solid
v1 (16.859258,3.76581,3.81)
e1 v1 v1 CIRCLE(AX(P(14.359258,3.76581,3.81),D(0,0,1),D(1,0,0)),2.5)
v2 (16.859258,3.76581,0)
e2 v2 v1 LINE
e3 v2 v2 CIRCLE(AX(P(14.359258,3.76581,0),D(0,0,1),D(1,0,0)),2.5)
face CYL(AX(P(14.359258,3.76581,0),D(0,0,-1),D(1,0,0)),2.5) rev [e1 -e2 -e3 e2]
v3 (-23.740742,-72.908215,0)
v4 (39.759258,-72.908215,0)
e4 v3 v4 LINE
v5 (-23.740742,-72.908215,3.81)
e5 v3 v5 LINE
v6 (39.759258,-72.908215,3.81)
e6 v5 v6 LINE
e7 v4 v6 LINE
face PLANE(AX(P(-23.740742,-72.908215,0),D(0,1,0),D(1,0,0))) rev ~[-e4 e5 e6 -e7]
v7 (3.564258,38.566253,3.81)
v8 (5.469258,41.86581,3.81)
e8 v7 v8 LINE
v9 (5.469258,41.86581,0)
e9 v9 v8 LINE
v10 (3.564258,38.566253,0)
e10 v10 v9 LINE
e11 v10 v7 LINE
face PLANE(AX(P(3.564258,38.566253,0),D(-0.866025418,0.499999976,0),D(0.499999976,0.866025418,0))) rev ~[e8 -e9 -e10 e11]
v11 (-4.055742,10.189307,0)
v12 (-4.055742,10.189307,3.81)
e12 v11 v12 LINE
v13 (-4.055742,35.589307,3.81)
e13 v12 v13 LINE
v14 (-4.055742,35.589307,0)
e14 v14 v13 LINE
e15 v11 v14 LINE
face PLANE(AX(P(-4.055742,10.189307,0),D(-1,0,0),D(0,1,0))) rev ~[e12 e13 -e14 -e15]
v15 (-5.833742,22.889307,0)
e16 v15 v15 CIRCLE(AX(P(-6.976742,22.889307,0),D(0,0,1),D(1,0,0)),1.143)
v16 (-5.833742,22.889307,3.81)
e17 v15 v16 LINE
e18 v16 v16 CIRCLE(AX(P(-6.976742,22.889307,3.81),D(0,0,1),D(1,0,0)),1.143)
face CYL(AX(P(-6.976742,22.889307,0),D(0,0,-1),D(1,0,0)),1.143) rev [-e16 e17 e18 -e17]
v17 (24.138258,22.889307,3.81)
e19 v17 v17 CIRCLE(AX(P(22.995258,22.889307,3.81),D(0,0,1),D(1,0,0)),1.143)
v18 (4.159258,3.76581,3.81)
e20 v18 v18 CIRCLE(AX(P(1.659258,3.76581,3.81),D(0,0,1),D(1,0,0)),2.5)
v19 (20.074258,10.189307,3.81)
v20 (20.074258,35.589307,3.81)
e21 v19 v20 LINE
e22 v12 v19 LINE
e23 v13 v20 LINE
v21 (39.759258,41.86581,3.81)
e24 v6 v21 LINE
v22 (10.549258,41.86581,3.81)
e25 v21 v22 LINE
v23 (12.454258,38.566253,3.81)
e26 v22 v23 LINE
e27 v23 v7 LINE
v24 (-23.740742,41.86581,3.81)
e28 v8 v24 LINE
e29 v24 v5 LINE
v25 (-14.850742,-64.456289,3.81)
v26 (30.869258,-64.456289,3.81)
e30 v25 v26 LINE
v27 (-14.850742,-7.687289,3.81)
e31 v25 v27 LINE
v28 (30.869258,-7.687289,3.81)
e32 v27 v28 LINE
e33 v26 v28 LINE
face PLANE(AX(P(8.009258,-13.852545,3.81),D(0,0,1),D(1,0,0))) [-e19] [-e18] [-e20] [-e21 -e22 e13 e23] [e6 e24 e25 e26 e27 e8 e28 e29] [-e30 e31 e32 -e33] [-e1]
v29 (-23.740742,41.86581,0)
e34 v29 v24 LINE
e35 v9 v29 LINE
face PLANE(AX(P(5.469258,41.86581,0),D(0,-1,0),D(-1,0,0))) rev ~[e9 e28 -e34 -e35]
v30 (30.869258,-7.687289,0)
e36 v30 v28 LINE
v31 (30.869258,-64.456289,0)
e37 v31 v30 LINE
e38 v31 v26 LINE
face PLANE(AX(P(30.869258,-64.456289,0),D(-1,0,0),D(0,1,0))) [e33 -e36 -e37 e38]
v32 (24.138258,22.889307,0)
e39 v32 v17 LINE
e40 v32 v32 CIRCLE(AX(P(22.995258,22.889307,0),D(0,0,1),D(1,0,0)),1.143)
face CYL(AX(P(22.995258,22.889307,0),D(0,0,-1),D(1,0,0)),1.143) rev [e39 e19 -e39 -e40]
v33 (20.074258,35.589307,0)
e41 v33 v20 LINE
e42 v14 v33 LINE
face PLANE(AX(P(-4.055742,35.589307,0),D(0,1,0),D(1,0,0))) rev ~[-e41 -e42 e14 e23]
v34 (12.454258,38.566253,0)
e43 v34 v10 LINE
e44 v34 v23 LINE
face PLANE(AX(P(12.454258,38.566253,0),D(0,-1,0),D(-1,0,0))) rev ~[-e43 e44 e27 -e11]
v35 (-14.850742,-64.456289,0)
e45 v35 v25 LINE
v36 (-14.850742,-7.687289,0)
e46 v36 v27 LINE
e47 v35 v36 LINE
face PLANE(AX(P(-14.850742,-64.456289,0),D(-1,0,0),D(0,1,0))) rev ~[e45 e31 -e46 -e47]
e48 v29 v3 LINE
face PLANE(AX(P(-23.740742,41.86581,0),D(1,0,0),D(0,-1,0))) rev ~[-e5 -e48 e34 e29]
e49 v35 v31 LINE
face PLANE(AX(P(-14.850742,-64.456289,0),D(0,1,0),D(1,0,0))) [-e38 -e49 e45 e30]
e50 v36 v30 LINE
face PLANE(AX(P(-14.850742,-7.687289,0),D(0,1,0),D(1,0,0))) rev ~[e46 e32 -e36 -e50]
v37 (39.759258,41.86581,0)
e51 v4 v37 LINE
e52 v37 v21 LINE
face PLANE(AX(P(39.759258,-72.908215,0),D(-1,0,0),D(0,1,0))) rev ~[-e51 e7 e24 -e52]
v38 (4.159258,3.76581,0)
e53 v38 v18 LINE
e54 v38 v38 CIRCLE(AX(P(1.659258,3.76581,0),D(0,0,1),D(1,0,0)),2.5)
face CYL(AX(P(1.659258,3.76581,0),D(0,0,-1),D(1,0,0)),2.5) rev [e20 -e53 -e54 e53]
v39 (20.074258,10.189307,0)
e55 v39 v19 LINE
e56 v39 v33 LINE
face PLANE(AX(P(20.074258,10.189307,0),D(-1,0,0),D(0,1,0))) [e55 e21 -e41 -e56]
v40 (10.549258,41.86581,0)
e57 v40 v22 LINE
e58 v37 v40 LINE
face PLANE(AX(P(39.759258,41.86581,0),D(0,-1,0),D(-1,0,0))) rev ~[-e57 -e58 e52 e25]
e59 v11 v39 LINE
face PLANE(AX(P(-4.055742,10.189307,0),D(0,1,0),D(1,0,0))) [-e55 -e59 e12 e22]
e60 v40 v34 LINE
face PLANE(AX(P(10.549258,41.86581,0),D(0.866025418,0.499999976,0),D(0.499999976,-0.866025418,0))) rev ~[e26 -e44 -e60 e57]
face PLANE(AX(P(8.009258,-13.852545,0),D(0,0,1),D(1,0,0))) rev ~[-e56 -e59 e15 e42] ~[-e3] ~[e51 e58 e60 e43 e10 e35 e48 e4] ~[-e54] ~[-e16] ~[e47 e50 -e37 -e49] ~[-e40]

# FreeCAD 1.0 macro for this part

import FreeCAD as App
import Part
import Sketcher
Q = App.Units.Quantity


def add_polygon(sketch, points):
    """Adds a closed chain of lines whose ends are joined by coincident constraints."""
    first, n = sketch.GeometryCount, len(points)
    for a, b in zip(points, points[1:] + points[:1]):
        sketch.addGeometry(Part.LineSegment(App.Vector(*a, 0), App.Vector(*b, 0)), False)
    for i in range(n):
        sketch.addConstraint(Sketcher.Constraint("Coincident", first + i, 2, first + (i + 1) % n, 1))

doc = App.newDocument("Part")
body = doc.addObject("PartDesign::Body", "Body")

# Sketch on XY plane
sketch1 = body.newObject("Sketcher::SketchObject", "Sketch")
sketch1.AttachmentSupport = (doc.getObject("XY_Plane"), [""])
sketch1.MapMode = "FlatFace"
add_polygon(sketch1, [(5.5, 41.9), (-23.7, 41.9), (-23.7, -72.9), (39.8, -72.9), (39.8, 41.9), (10.5, 41.9), (12.5, 38.6), (3.6, 38.6)])  # lines 0-7
add_polygon(sketch1, [(30.9, -64.5), (-14.9, -64.5), (-14.9, -7.7), (30.9, -7.7)])  # lines 8-11
sketch1.addGeometry(Part.Circle(App.Vector(1.7, 3.8, 0), App.Vector(0, 0, 1), 2.5), False)  # 12
sketch1.addGeometry(Part.Circle(App.Vector(-7, 22.9, 0), App.Vector(0, 0, 1), 1.1), False)  # 13
sketch1.addGeometry(Part.Circle(App.Vector(14.4, 3.8, 0), App.Vector(0, 0, 1), 2.5), False)  # 14
add_polygon(sketch1, [(20.1, 10.2), (-4.1, 10.2), (-4.1, 35.6), (20.1, 35.6)])  # lines 15-18
sketch1.addGeometry(Part.Circle(App.Vector(23, 22.9, 0), App.Vector(0, 0, 1), 1.1), False)  # 19
sketch1.addConstraint([
    Sketcher.Constraint("Horizontal", 0),
    Sketcher.Constraint("Vertical", 1),
    Sketcher.Constraint("Horizontal", 2),
    Sketcher.Constraint("Vertical", 3),
    Sketcher.Constraint("Horizontal", 4),
    Sketcher.Constraint("Horizontal", 6),
    Sketcher.Constraint("Horizontal", 8),
    Sketcher.Constraint("Vertical", 9),
    Sketcher.Constraint("Horizontal", 10),
    Sketcher.Constraint("Vertical", 11),
    Sketcher.Constraint("Horizontal", 15),
    Sketcher.Constraint("Vertical", 16),
    Sketcher.Constraint("Horizontal", 17),
    Sketcher.Constraint("Vertical", 18),
    Sketcher.Constraint("Equal", 12, 14),
    Sketcher.Constraint("Equal", 13, 19),
    Sketcher.Constraint("Horizontal", 12, 3, 14, 3),
    Sketcher.Constraint("Horizontal", 13, 3, 19, 3),
    Sketcher.Constraint("Horizontal", 0, 2, 3, 2),
    Sketcher.Constraint("Equal", 0, 4),
    Sketcher.Constraint("Equal", 5, 7),
    Sketcher.Constraint("Diameter", 13, Q("0.09 in")),
    Sketcher.Constraint("DistanceY", 16, 1, 16, 2, Q("1 in")),
    Sketcher.Constraint("DistanceX", 2, 1, 2, 2, Q("2.5 in")),
    Sketcher.Constraint("DistanceX", 8, 2, 8, 1, Q("1.8 in")),
    Sketcher.Constraint("Angle", 5, Q("-60.000002 deg")),
    Sketcher.Constraint("DistanceX", 0, 2, 12, 3, Q("1 in")),
    Sketcher.Constraint("DistanceX", 14, 3, 2, 2, Q("1 in")),
    Sketcher.Constraint("DistanceX", 0, 2, 0, 1, Q("1.15 in")),
    Sketcher.Constraint("DistanceX", 6, 2, 6, 1, Q("0.35 in")),
    Sketcher.Constraint("DistanceX", 15, 2, 15, 1, Q("0.95 in")),
    Sketcher.Constraint("DistanceY", 12, 3, 0, 2, Q("1.5 in")),
    Sketcher.Constraint("DistanceY", 15, 2, 13, 3, Q("0.5 in")),
    Sketcher.Constraint("DistanceX", 15, 2, 6, 2, Q("0.3 in")),
    Sketcher.Constraint("Diameter", 12, Q("5 mm")),
    Sketcher.Constraint("DistanceY", 9, 1, 9, 2, Q("2.235 in")),
    Sketcher.Constraint("DistanceX", 13, 3, 12, 3, Q("0.34 in")),
    Sketcher.Constraint("DistanceX", 14, 3, 19, 3, Q("0.34 in")),
    Sketcher.Constraint("DistanceX", 1, 2, 8, 2, Q("0.35 in")),
    Sketcher.Constraint("DistanceY", 8, 2, 12, 3, Q("68.222099 mm")),
    Sketcher.Constraint("DistanceY", 1, 2, 1, 1, Q("114.774025 mm")),
    Sketcher.Constraint("DistanceY", -1, 1, 12, 3, Q("3.76581 mm")),
    Sketcher.Constraint("DistanceX", 13, 3, -1, 1, Q("6.976742 mm")),
    Sketcher.Constraint("DistanceY", 1, 2, 13, 3, Q("95.797522 mm")),
])
pad1 = body.newObject("PartDesign::Pad", "Pad")
pad1.Profile = sketch1
pad1.Length = Q("0.15 in")

doc.recompute()
